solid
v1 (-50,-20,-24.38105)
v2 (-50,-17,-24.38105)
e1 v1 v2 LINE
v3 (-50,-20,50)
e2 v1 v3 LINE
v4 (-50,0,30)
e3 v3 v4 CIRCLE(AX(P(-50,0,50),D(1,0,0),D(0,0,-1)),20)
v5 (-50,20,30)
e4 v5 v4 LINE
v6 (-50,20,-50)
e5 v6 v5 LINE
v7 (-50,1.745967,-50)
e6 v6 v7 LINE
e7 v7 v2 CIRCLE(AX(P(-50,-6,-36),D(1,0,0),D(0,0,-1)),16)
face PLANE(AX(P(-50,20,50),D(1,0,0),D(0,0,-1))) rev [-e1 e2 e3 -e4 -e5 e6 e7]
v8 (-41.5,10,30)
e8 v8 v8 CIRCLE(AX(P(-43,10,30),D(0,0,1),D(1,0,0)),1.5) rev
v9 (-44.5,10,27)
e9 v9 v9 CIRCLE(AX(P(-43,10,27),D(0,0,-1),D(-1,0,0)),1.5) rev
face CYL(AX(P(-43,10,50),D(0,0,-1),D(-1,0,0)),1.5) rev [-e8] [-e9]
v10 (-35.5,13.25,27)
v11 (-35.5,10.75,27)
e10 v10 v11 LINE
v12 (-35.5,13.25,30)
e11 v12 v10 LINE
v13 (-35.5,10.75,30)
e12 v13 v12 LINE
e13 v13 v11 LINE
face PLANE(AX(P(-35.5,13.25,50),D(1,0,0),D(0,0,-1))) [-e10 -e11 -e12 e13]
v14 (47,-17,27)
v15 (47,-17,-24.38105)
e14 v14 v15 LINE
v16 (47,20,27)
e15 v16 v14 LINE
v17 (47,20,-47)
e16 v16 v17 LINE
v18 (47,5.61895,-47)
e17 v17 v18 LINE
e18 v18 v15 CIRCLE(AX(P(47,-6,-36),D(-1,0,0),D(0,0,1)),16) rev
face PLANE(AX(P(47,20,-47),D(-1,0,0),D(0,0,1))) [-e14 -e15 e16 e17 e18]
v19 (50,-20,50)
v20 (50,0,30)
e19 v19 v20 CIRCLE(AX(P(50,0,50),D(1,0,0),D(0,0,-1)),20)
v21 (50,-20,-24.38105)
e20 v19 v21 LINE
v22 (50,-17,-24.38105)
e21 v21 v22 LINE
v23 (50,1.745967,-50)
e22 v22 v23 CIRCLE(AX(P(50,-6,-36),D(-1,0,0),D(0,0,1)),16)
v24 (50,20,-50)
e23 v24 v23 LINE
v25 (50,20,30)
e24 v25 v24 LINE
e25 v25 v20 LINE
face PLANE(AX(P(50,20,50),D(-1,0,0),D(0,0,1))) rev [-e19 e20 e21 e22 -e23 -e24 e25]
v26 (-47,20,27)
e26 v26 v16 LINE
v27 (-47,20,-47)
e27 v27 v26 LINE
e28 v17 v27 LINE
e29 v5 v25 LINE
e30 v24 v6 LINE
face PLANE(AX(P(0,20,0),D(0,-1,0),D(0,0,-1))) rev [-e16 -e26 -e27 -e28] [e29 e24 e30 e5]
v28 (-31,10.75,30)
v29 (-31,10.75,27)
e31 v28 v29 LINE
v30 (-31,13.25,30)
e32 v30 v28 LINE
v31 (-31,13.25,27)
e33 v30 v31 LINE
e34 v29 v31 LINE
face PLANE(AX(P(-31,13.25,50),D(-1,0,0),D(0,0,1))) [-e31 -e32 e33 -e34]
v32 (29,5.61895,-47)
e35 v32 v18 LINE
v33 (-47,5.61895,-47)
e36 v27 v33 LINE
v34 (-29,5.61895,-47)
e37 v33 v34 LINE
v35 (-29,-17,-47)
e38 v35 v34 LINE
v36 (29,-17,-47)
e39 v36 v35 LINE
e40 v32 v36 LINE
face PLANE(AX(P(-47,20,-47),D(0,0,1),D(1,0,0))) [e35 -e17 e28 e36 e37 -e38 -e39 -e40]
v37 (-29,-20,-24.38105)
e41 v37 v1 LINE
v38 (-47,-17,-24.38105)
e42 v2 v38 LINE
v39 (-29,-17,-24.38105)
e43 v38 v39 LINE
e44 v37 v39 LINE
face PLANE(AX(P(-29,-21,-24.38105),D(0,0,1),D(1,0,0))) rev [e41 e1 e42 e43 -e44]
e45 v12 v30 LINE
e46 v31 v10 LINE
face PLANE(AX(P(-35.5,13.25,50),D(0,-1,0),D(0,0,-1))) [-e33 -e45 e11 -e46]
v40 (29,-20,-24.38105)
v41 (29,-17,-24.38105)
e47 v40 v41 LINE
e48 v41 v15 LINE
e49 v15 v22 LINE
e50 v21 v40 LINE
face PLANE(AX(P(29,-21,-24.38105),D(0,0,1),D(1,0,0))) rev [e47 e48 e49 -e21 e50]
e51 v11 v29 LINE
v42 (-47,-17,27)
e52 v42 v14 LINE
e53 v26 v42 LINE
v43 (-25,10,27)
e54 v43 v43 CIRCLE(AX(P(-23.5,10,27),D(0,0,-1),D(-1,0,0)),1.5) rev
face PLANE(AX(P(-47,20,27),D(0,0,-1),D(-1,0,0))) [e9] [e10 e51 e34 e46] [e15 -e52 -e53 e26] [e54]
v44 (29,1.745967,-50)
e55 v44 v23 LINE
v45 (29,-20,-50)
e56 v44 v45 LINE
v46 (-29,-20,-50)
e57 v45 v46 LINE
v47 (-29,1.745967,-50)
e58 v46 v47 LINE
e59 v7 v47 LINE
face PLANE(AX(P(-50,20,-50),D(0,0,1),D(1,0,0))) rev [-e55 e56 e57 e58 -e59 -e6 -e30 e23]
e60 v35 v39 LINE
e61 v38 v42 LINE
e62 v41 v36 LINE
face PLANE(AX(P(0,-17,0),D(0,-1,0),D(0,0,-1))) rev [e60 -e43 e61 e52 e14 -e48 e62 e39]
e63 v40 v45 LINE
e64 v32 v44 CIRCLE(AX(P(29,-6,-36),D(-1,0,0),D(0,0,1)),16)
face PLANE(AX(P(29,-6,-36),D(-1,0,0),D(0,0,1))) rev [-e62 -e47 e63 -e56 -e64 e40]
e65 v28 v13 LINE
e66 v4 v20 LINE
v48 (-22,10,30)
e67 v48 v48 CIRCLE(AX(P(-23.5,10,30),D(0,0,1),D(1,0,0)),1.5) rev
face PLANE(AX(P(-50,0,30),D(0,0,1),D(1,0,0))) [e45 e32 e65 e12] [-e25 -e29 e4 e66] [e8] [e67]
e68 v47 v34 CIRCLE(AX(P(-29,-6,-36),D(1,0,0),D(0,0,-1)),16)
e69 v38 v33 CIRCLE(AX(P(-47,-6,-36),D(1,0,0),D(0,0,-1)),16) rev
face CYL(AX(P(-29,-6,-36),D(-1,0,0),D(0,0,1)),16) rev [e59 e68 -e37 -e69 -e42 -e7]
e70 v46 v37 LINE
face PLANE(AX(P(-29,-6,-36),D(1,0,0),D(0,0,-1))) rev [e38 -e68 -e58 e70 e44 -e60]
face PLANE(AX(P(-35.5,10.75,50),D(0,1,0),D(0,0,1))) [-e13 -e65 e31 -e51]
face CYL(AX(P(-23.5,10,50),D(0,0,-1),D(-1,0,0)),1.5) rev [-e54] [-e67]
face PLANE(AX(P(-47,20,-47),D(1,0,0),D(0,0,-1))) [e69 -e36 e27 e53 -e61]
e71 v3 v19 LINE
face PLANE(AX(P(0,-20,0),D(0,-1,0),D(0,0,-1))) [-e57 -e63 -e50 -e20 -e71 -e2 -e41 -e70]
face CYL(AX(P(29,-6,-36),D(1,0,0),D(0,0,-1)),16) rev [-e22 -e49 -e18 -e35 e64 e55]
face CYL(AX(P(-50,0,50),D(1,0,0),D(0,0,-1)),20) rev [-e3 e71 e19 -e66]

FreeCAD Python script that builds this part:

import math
import FreeCAD as App
import Part
import Sketcher
Q = App.Units.Quantity

doc = App.newDocument("Part")
body = doc.addObject("PartDesign::Body", "Body")

# Sketch on XZ plane
sketch1 = body.newObject("Sketcher::SketchObject", "Sketch")
sketch1.AttachmentSupport = (doc.getObject("XZ_Plane"), [""])
sketch1.MapMode = "FlatFace"
sketch1.addGeometry(Part.LineSegment(App.Vector(-50, -50, 0), App.Vector(-50, 50, 0)), False)
sketch1.addGeometry(Part.LineSegment(App.Vector(-50, 50, 0), App.Vector(50, 50, 0)), False)
sketch1.addGeometry(Part.LineSegment(App.Vector(50, 50, 0), App.Vector(50, -50, 0)), False)
sketch1.addGeometry(Part.LineSegment(App.Vector(50, -50, 0), App.Vector(-50, -50, 0)), False)
sketch1.addConstraint(Sketcher.Constraint("Coincident", 0, 2, 1, 1))
sketch1.addConstraint(Sketcher.Constraint("Coincident", 1, 2, 2, 1))
sketch1.addConstraint(Sketcher.Constraint("Coincident", 2, 2, 3, 1))
sketch1.addConstraint(Sketcher.Constraint("Coincident", 3, 2, 0, 1))
sketch1.addConstraint(Sketcher.Constraint("Vertical", 0))
sketch1.addConstraint(Sketcher.Constraint("Horizontal", 1))
sketch1.addConstraint(Sketcher.Constraint("Vertical", 2))
sketch1.addConstraint(Sketcher.Constraint("Horizontal", 3))
sketch1.addConstraint(Sketcher.Constraint("Symmetric", 0, 2, 2, 2, -1, 1))
sketch1.addConstraint(Sketcher.Constraint("Equal", 3, 0))
sketch1.addConstraint(Sketcher.Constraint("DistanceX", 1, 1, 1, 2, Q("100 mm")))
pad1 = body.newObject("PartDesign::Pad", "Pad")
pad1.Profile = sketch1
pad1.Length = 40
pad1.Midplane = True

# Sketch on YZ plane
sketch2 = body.newObject("Sketcher::SketchObject", "Sketch001")
sketch2.AttachmentSupport = (doc.getObject("YZ_Plane"), [""])
sketch2.MapMode = "FlatFace"
sketch2.addGeometry(Part.LineSegment(App.Vector(20, 30, 0), App.Vector(20, 50, 0)), False)
sketch2.addGeometry(Part.ArcOfCircle(Part.Circle(App.Vector(0, 50, 0), App.Vector(0, 0, 1), 20), math.radians(0), math.radians(270)), False)
sketch2.addGeometry(Part.LineSegment(App.Vector(0, 30, 0), App.Vector(20, 30, 0)), False)
sketch2.addConstraint(Sketcher.Constraint("Tangent", 0, 2, 1, 1))
sketch2.addConstraint(Sketcher.Constraint("Tangent", 1, 2, 2, 1))
sketch2.addConstraint(Sketcher.Constraint("Coincident", 2, 2, 0, 1))
sketch2.addConstraint(Sketcher.Constraint("Vertical", 0))
sketch2.addConstraint(Sketcher.Constraint("Horizontal", 2))
sketch2.addConstraint(Sketcher.Constraint("PointOnObject", 1, 3, -2))
sketch2.addConstraint(Sketcher.Constraint("Radius", 1, Q("20 mm")))
sketch2.addConstraint(Sketcher.Constraint("DistanceY", -1, 1, 1, 3, Q("50 mm")))
pocket1 = body.newObject("PartDesign::Pocket", "Pocket")
pocket1.Profile = sketch2
pocket1.Type = "ThroughAll"
pocket1.Midplane = True

# Sketch on XZ plane
sketch3 = body.newObject("Sketcher::SketchObject", "Sketch002")
sketch3.AttachmentSupport = (doc.getObject("XZ_Plane"), [""])
sketch3.MapMode = "FlatFace"
sketch3.addGeometry(Part.LineSegment(App.Vector(-47, -47, 0), App.Vector(-47, 27, 0)), False)
sketch3.addGeometry(Part.LineSegment(App.Vector(-47, 27, 0), App.Vector(47, 27, 0)), False)
sketch3.addGeometry(Part.LineSegment(App.Vector(47, 27, 0), App.Vector(47, -47, 0)), False)
sketch3.addGeometry(Part.LineSegment(App.Vector(47, -47, 0), App.Vector(-47, -47, 0)), False)
sketch3.addConstraint(Sketcher.Constraint("Coincident", 0, 2, 1, 1))
sketch3.addConstraint(Sketcher.Constraint("Coincident", 1, 2, 2, 1))
sketch3.addConstraint(Sketcher.Constraint("Coincident", 2, 2, 3, 1))
sketch3.addConstraint(Sketcher.Constraint("Coincident", 3, 2, 0, 1))
sketch3.addConstraint(Sketcher.Constraint("Vertical", 0))
sketch3.addConstraint(Sketcher.Constraint("Horizontal", 1))
sketch3.addConstraint(Sketcher.Constraint("Vertical", 2))
sketch3.addConstraint(Sketcher.Constraint("Horizontal", 3))
sketch3.addConstraint(Sketcher.Constraint("DistanceX", 1, 1, 1, 2, Q("94 mm")))
sketch3.addConstraint(Sketcher.Constraint("DistanceY", 0, 1, 0, 2, Q("74 mm")))
sketch3.addConstraint(Sketcher.Constraint("DistanceX", 0, 2, -1, 1, Q("47 mm")))
sketch3.addConstraint(Sketcher.Constraint("DistanceY", -1, 1, 0, 2, Q("27 mm")))
pocket2 = body.newObject("PartDesign::Pocket", "Pocket001")
pocket2.Profile = sketch3
pocket2.Type = "ThroughAll"

# Sketch on XZ plane
sketch4 = body.newObject("Sketcher::SketchObject", "Sketch003")
sketch4.AttachmentSupport = (doc.getObject("XZ_Plane"), [""])
sketch4.MapMode = "FlatFace"
sketch4.addGeometry(Part.LineSegment(App.Vector(-47, -47, 0), App.Vector(-47, 27, 0)), False)
sketch4.addGeometry(Part.LineSegment(App.Vector(-47, 27, 0), App.Vector(47, 27, 0)), False)
sketch4.addGeometry(Part.LineSegment(App.Vector(47, 27, 0), App.Vector(47, -47, 0)), False)
sketch4.addGeometry(Part.LineSegment(App.Vector(47, -47, 0), App.Vector(-47, -47, 0)), False)
sketch4.addConstraint(Sketcher.Constraint("Coincident", 0, 2, 1, 1))
sketch4.addConstraint(Sketcher.Constraint("Coincident", 1, 2, 2, 1))
sketch4.addConstraint(Sketcher.Constraint("Coincident", 2, 2, 3, 1))
sketch4.addConstraint(Sketcher.Constraint("Coincident", 3, 2, 0, 1))
sketch4.addConstraint(Sketcher.Constraint("Vertical", 0))
sketch4.addConstraint(Sketcher.Constraint("Horizontal", 1))
sketch4.addConstraint(Sketcher.Constraint("Vertical", 2))
sketch4.addConstraint(Sketcher.Constraint("Horizontal", 3))
sketch4.addConstraint(Sketcher.Constraint("DistanceX", 1, 1, 1, 2, Q("94 mm")))
sketch4.addConstraint(Sketcher.Constraint("DistanceY", 0, 1, 0, 2, Q("74 mm")))
sketch4.addConstraint(Sketcher.Constraint("DistanceX", 0, 2, -1, 1, Q("47 mm")))
sketch4.addConstraint(Sketcher.Constraint("DistanceY", -1, 1, 0, 2, Q("27 mm")))
pocket3 = body.newObject("PartDesign::Pocket", "Pocket002")
pocket3.Profile = sketch4
pocket3.Length = 17
pocket3.Reversed = True

# Sketch on YZ plane
sketch5 = body.newObject("Sketcher::SketchObject", "Sketch004")
sketch5.AttachmentSupport = (doc.getObject("YZ_Plane"), [""])
sketch5.MapMode = "FlatFace"
sketch5.AttachmentOffset = App.Placement(App.Vector(0, 0, 50), App.Rotation())
sketch5.addGeometry(Part.ArcOfCircle(Part.Circle(App.Vector(-6, -36, 0), App.Vector(0, 0, 1), 16), math.radians(-90), math.radians(180)), False)
sketch5.addGeometry(Part.LineSegment(App.Vector(-22, -36, 0), App.Vector(-22, -52, 0)), False)
sketch5.addGeometry(Part.LineSegment(App.Vector(-22, -52, 0), App.Vector(-6, -52, 0)), False)
sketch5.addConstraint(Sketcher.Constraint("Tangent", 0, 2, 1, 1))
sketch5.addConstraint(Sketcher.Constraint("Coincident", 1, 2, 2, 1))
sketch5.addConstraint(Sketcher.Constraint("Tangent", 2, 2, 0, 1))
sketch5.addConstraint(Sketcher.Constraint("Vertical", 1))
sketch5.addConstraint(Sketcher.Constraint("Horizontal", 2))
sketch5.addConstraint(Sketcher.Constraint("Radius", 0, Q("16 mm")))
sketch5.addConstraint(Sketcher.Constraint("DistanceX", 0, 3, -1, 1, Q("6 mm")))
sketch5.addConstraint(Sketcher.Constraint("DistanceY", 0, 3, -1, 1, Q("36 mm")))
pocket4 = body.newObject("PartDesign::Pocket", "Pocket003")
pocket4.Profile = sketch5
pocket4.Length = 21

# Sketch on YZ plane
sketch6 = body.newObject("Sketcher::SketchObject", "Sketch005")
sketch6.AttachmentSupport = (doc.getObject("YZ_Plane"), [""])
sketch6.MapMode = "FlatFace"
sketch6.AttachmentOffset = App.Placement(App.Vector(0, 0, -29), App.Rotation())
sketch6.addGeometry(Part.LineSegment(App.Vector(-22, -36, 0), App.Vector(-22, -52, 0)), False)
sketch6.addGeometry(Part.LineSegment(App.Vector(-22, -52, 0), App.Vector(-6, -52, 0)), False)
sketch6.addGeometry(Part.ArcOfCircle(Part.Circle(App.Vector(-6, -36, 0), App.Vector(0, 0, 1), 16), math.radians(-90), math.radians(180)), False)
sketch6.addConstraint(Sketcher.Constraint("Coincident", 0, 2, 1, 1))
sketch6.addConstraint(Sketcher.Constraint("Tangent", 1, 2, 2, 1))
sketch6.addConstraint(Sketcher.Constraint("Tangent", 2, 2, 0, 1))
sketch6.addConstraint(Sketcher.Constraint("Vertical", 0))
sketch6.addConstraint(Sketcher.Constraint("Horizontal", 1))
sketch6.addConstraint(Sketcher.Constraint("Radius", 2, Q("16 mm")))
sketch6.addConstraint(Sketcher.Constraint("DistanceX", 2, 3, -1, 1, Q("6 mm")))
sketch6.addConstraint(Sketcher.Constraint("DistanceY", 2, 3, -1, 1, Q("36 mm")))
pocket5 = body.newObject("PartDesign::Pocket", "Pocket004")
pocket5.Profile = sketch6
pocket5.Length = 21

# Sketch on XZ plane
sketch7 = body.newObject("Sketcher::SketchObject", "Sketch006")
sketch7.AttachmentSupport = (doc.getObject("XZ_Plane"), [""])
sketch7.MapMode = "FlatFace"
sketch7.addGeometry(Part.LineSegment(App.Vector(-50, -28.3, 0), App.Vector(-50, -24.4, 0)), False)
sketch7.addGeometry(Part.LineSegment(App.Vector(-50, -24.4, 0), App.Vector(-29, -24.4, 0)), False)
sketch7.addGeometry(Part.LineSegment(App.Vector(-29, -24.4, 0), App.Vector(-29, -28.3, 0)), False)
sketch7.addGeometry(Part.LineSegment(App.Vector(-29, -28.3, 0), App.Vector(-50, -28.3, 0)), False)
sketch7.addGeometry(Part.LineSegment(App.Vector(29, -28.3, 0), App.Vector(29, -24.4, 0)), False)
sketch7.addGeometry(Part.LineSegment(App.Vector(29, -24.4, 0), App.Vector(50, -24.4, 0)), False)
sketch7.addGeometry(Part.LineSegment(App.Vector(50, -24.4, 0), App.Vector(50, -28.3, 0)), False)
sketch7.addGeometry(Part.LineSegment(App.Vector(50, -28.3, 0), App.Vector(29, -28.3, 0)), False)
sketch7.addConstraint(Sketcher.Constraint("Coincident", 0, 2, 1, 1))
sketch7.addConstraint(Sketcher.Constraint("Coincident", 1, 2, 2, 1))
sketch7.addConstraint(Sketcher.Constraint("Coincident", 2, 2, 3, 1))
sketch7.addConstraint(Sketcher.Constraint("Coincident", 3, 2, 0, 1))
sketch7.addConstraint(Sketcher.Constraint("Coincident", 4, 2, 5, 1))
sketch7.addConstraint(Sketcher.Constraint("Coincident", 5, 2, 6, 1))
sketch7.addConstraint(Sketcher.Constraint("Coincident", 6, 2, 7, 1))
sketch7.addConstraint(Sketcher.Constraint("Coincident", 7, 2, 4, 1))
sketch7.addConstraint(Sketcher.Constraint("Vertical", 0))
sketch7.addConstraint(Sketcher.Constraint("Horizontal", 1))
sketch7.addConstraint(Sketcher.Constraint("Vertical", 2))
sketch7.addConstraint(Sketcher.Constraint("Horizontal", 3))
sketch7.addConstraint(Sketcher.Constraint("Vertical", 4))
sketch7.addConstraint(Sketcher.Constraint("Horizontal", 5))
sketch7.addConstraint(Sketcher.Constraint("Vertical", 6))
sketch7.addConstraint(Sketcher.Constraint("Horizontal", 7))
sketch7.addConstraint(Sketcher.Constraint("Symmetric", 1, 2, 4, 2, -2))
sketch7.addConstraint(Sketcher.Constraint("Symmetric", 3, 2, 6, 2, -2))
sketch7.addConstraint(Sketcher.Constraint("DistanceX", 1, 1, 1, 2, Q("21 mm")))
sketch7.addConstraint(Sketcher.Constraint("DistanceX", 0, 2, -1, 1, Q("50 mm")))
sketch7.addConstraint(Sketcher.Constraint("DistanceY", 0, 1, 0, 2, Q("3.872983 mm")))
sketch7.addConstraint(Sketcher.Constraint("DistanceY", 0, 2, -1, 1, Q("24.38105 mm")))
pocket6 = body.newObject("PartDesign::Pocket", "Pocket005")
pocket6.Profile = sketch7
pocket6.Length = 21
pocket6.Reversed = True

# Sketch on XY plane
sketch8 = body.newObject("Sketcher::SketchObject", "Sketch007")
sketch8.AttachmentSupport = (doc.getObject("XY_Plane"), [""])
sketch8.MapMode = "FlatFace"
sketch8.addGeometry(Part.Circle(App.Vector(-43, 10, 0), App.Vector(0, 0, 1), 1.5), False)
sketch8.addGeometry(Part.Circle(App.Vector(-23.5, 10, 0), App.Vector(0, 0, 1), 1.5), False)
sketch8.addGeometry(Part.LineSegment(App.Vector(-35.5, 13.2, 0), App.Vector(-35.5, 10.8, 0)), False)
sketch8.addGeometry(Part.LineSegment(App.Vector(-35.5, 10.8, 0), App.Vector(-31, 10.8, 0)), False)
sketch8.addGeometry(Part.LineSegment(App.Vector(-31, 10.8, 0), App.Vector(-31, 13.2, 0)), False)
sketch8.addGeometry(Part.LineSegment(App.Vector(-31, 13.2, 0), App.Vector(-35.5, 13.2, 0)), False)
sketch8.addConstraint(Sketcher.Constraint("Coincident", 2, 2, 3, 1))
sketch8.addConstraint(Sketcher.Constraint("Coincident", 3, 2, 4, 1))
sketch8.addConstraint(Sketcher.Constraint("Coincident", 4, 2, 5, 1))
sketch8.addConstraint(Sketcher.Constraint("Coincident", 5, 2, 2, 1))
sketch8.addConstraint(Sketcher.Constraint("Vertical", 2))
sketch8.addConstraint(Sketcher.Constraint("Horizontal", 3))
sketch8.addConstraint(Sketcher.Constraint("Vertical", 4))
sketch8.addConstraint(Sketcher.Constraint("Horizontal", 5))
sketch8.addConstraint(Sketcher.Constraint("Equal", 0, 1))
sketch8.addConstraint(Sketcher.Constraint("Horizontal", 0, 3, 1, 3))
sketch8.addConstraint(Sketcher.Constraint("Diameter", 0, Q("3 mm")))
sketch8.addConstraint(Sketcher.Constraint("DistanceX", 3, 1, 3, 2, Q("4.5 mm")))
sketch8.addConstraint(Sketcher.Constraint("DistanceY", 2, 2, 2, 1, Q("2.5 mm")))
sketch8.addConstraint(Sketcher.Constraint("DistanceX", 0, 3, -1, 1, Q("43 mm")))
sketch8.addConstraint(Sketcher.Constraint("DistanceY", -1, 1, 0, 3, Q("10 mm")))
sketch8.addConstraint(Sketcher.Constraint("DistanceX", 3, 2, -1, 1, Q("31 mm")))
sketch8.addConstraint(Sketcher.Constraint("DistanceX", 2, 2, 1, 3, Q("12 mm")))
sketch8.addConstraint(Sketcher.Constraint("DistanceY", -1, 1, 2, 2, Q("10.75 mm")))
pocket7 = body.newObject("PartDesign::Pocket", "Pocket006")
pocket7.Profile = sketch8
pocket7.Type = "ThroughAll"
pocket7.Reversed = True

doc.recompute()
